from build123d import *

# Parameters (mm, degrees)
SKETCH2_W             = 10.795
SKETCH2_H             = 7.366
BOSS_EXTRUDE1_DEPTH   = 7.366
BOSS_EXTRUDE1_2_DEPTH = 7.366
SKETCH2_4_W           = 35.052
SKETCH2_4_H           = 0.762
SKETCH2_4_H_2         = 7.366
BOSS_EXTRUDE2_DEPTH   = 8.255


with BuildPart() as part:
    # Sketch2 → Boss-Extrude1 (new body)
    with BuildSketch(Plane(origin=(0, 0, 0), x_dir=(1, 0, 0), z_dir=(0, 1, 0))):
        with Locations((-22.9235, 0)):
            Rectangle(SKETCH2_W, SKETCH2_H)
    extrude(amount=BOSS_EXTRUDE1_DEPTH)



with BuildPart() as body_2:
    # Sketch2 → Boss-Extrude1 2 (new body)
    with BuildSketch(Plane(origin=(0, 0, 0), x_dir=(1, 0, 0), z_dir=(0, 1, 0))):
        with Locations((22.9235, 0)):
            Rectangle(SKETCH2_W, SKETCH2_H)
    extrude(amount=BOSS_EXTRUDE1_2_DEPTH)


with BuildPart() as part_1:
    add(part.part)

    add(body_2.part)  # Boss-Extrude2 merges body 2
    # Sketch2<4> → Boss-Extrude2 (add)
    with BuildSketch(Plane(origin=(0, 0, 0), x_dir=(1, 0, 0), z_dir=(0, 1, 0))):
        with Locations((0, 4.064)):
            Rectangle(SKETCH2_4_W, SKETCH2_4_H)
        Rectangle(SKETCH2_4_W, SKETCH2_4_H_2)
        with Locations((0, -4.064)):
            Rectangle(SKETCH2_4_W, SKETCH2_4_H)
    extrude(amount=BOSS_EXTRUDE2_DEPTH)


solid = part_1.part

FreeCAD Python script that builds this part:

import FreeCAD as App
import Part
import Sketcher

V = App.Vector
Q = App.Units.Quantity

doc = App.newDocument("Part")
params = doc.addObject("Spreadsheet::Sheet", "Params")
for row, (alias, value) in enumerate([
    ("sketch1_height", "0.29 in"),
    ("sketch1_width", "0.425 in"),
    ("pad1_length", "0.29 in"),
    ("sketch2_height", "0.29 in"),
    ("sketch2_width", "0.425 in"),
    ("pad2_length", "0.29 in"),
    ("sketch3_width", "1.38 in"),
    ("sketch3_height", "0.35 in"),
    ("pad3_length", "0.325 in"),
], start=1):
    params.set(f"A{row}", alias)
    params.set(f"B{row}", "=" + value)
    params.setAlias(f"B{row}", alias)

body = doc.addObject("PartDesign::Body", "Body")

# Sketch on XZ plane
sketch1 = doc.addObject("Sketcher::SketchObject", "Sketch")
body.addObject(sketch1)
sketch1.AttachmentSupport = (doc.XZ_Plane, [""])
sketch1.MapMode = "FlatFace"
sketch1.addGeometry(Part.LineSegment(V(-28, -4, 0), V(-28, 4, 0)), False)
sketch1.addGeometry(Part.LineSegment(V(-28, 4, 0), V(-18, 4, 0)), False)
sketch1.addGeometry(Part.LineSegment(V(-18, 4, 0), V(-18, -4, 0)), False)
sketch1.addGeometry(Part.LineSegment(V(-18, -4, 0), V(-28, -4, 0)), False)
sketch1.addConstraint(Sketcher.Constraint("Coincident", 0, 2, 1, 1))
sketch1.addConstraint(Sketcher.Constraint("Coincident", 1, 2, 2, 1))
sketch1.addConstraint(Sketcher.Constraint("Coincident", 2, 2, 3, 1))
sketch1.addConstraint(Sketcher.Constraint("Coincident", 3, 2, 0, 1))
sketch1.addConstraint(Sketcher.Constraint("Vertical", 0))
sketch1.addConstraint(Sketcher.Constraint("Horizontal", 1))
sketch1.addConstraint(Sketcher.Constraint("Vertical", 2))
sketch1.addConstraint(Sketcher.Constraint("Horizontal", 3))
sketch1.addConstraint(Sketcher.Constraint("DistanceY", 0, 1, 0, 2, Q("0.29 in")))
sketch1.addConstraint(Sketcher.Constraint("DistanceX", 1, 1, 1, 2, Q("0.425 in")))
sketch1.addConstraint(Sketcher.Constraint("DistanceX", 1, 2, -1, 1, Q("0.69 in")))
sketch1.addConstraint(Sketcher.Constraint("DistanceY", -1, 1, 0, 2, Q("0.145 in")))
sketch1.setExpression("Constraints[8]", "Params.sketch1_height")
sketch1.setExpression("Constraints[9]", "Params.sketch1_width")
pad1 = doc.addObject("PartDesign::Pad", "Pad")
body.addObject(pad1)
pad1.Profile = sketch1
pad1.setExpression("Length", "Params.pad1_length")
pad1.Reversed = True
body2 = doc.addObject("PartDesign::Body", "Body001")

# Sketch on XZ plane
sketch2 = doc.addObject("Sketcher::SketchObject", "Sketch001")
body2.addObject(sketch2)
sketch2.AttachmentSupport = (doc.getObject("XZ_Plane001"), [""])
sketch2.MapMode = "FlatFace"
sketch2.addGeometry(Part.LineSegment(V(18, -4, 0), V(18, 4, 0)), False)
sketch2.addGeometry(Part.LineSegment(V(18, 4, 0), V(28, 4, 0)), False)
sketch2.addGeometry(Part.LineSegment(V(28, 4, 0), V(28, -4, 0)), False)
sketch2.addGeometry(Part.LineSegment(V(28, -4, 0), V(18, -4, 0)), False)
sketch2.addConstraint(Sketcher.Constraint("Coincident", 0, 2, 1, 1))
sketch2.addConstraint(Sketcher.Constraint("Coincident", 1, 2, 2, 1))
sketch2.addConstraint(Sketcher.Constraint("Coincident", 2, 2, 3, 1))
sketch2.addConstraint(Sketcher.Constraint("Coincident", 3, 2, 0, 1))
sketch2.addConstraint(Sketcher.Constraint("Vertical", 0))
sketch2.addConstraint(Sketcher.Constraint("Horizontal", 1))
sketch2.addConstraint(Sketcher.Constraint("Vertical", 2))
sketch2.addConstraint(Sketcher.Constraint("Horizontal", 3))
sketch2.addConstraint(Sketcher.Constraint("DistanceY", 0, 1, 0, 2, Q("0.29 in")))
sketch2.addConstraint(Sketcher.Constraint("DistanceX", 1, 1, 1, 2, Q("0.425 in")))
sketch2.addConstraint(Sketcher.Constraint("DistanceX", -1, 1, 0, 2, Q("0.69 in")))
sketch2.addConstraint(Sketcher.Constraint("DistanceY", -1, 1, 0, 2, Q("0.145 in")))
sketch2.setExpression("Constraints[8]", "Params.sketch2_height")
sketch2.setExpression("Constraints[9]", "Params.sketch2_width")
pad2 = doc.addObject("PartDesign::Pad", "Pad001")
body2.addObject(pad2)
pad2.Profile = sketch2
pad2.setExpression("Length", "Params.pad2_length")
pad2.Reversed = True
body.AllowCompound = True
doc.recompute()

boolean = doc.addObject("PartDesign::Boolean", "Boolean")
body.addObject(boolean)
boolean.Type = "Fuse"
boolean.addObjects([body2])

# Sketch on XZ plane
sketch3 = doc.addObject("Sketcher::SketchObject", "Sketch002")
body.addObject(sketch3)
sketch3.AttachmentSupport = (doc.XZ_Plane, [""])
sketch3.MapMode = "FlatFace"
sketch3.addGeometry(Part.LineSegment(V(-18, -4, 0), V(-18, 4, 0)), False)
sketch3.addGeometry(Part.LineSegment(V(-18, 4, 0), V(18, 4, 0)), False)
sketch3.addGeometry(Part.LineSegment(V(18, 4, 0), V(18, -4, 0)), False)
sketch3.addGeometry(Part.LineSegment(V(18, -4, 0), V(-18, -4, 0)), False)
sketch3.addConstraint(Sketcher.Constraint("Coincident", 0, 2, 1, 1))
sketch3.addConstraint(Sketcher.Constraint("Coincident", 1, 2, 2, 1))
sketch3.addConstraint(Sketcher.Constraint("Coincident", 2, 2, 3, 1))
sketch3.addConstraint(Sketcher.Constraint("Coincident", 3, 2, 0, 1))
sketch3.addConstraint(Sketcher.Constraint("Vertical", 0))
sketch3.addConstraint(Sketcher.Constraint("Horizontal", 1))
sketch3.addConstraint(Sketcher.Constraint("Vertical", 2))
sketch3.addConstraint(Sketcher.Constraint("Horizontal", 3))
sketch3.addConstraint(Sketcher.Constraint("Symmetric", 0, 2, 2, 2, -1, 1))
sketch3.addConstraint(Sketcher.Constraint("DistanceX", 1, 1, 1, 2, Q("1.38 in")))
sketch3.addConstraint(Sketcher.Constraint("DistanceY", 0, 1, 0, 2, Q("0.35 in")))
sketch3.setExpression("Constraints[9]", "Params.sketch3_width")
sketch3.setExpression("Constraints[10]", "Params.sketch3_height")
pad3 = doc.addObject("PartDesign::Pad", "Pad002")
body.addObject(pad3)
pad3.Profile = sketch3
pad3.setExpression("Length", "Params.pad3_length")
pad3.Reversed = True

doc.recompute()
